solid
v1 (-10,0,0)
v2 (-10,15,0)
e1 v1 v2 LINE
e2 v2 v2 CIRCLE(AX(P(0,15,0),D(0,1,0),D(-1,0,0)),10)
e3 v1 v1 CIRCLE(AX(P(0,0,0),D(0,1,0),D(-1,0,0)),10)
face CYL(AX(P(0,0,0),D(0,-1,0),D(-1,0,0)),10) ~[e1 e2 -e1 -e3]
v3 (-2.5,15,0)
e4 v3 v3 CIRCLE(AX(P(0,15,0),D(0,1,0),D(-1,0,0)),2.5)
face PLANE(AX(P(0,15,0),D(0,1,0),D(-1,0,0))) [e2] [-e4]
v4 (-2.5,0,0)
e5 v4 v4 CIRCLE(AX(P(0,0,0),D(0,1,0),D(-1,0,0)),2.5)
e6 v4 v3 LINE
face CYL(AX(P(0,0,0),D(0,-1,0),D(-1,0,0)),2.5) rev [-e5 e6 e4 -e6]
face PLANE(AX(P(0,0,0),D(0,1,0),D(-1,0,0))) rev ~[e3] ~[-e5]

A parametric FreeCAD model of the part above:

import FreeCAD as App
import Part
import Sketcher
from FreeCAD import Vector

doc = App.newDocument("Part")
body = doc.addObject("PartDesign::Body", "Body")

# Sketch on XZ plane
sketch1 = body.newObject("Sketcher::SketchObject", "Sketch")
sketch1.AttachmentSupport = (doc.getObject("XZ_Plane"), [""])
sketch1.MapMode = "FlatFace"
sketch1.addGeometry([
    Part.Circle(Vector(0, 0, 0), Vector(0, 0, 1), 10),
    Part.Circle(Vector(0, 0, 0), Vector(0, 0, 1), 2.5),
], False)
sketch1.addConstraint([
    Sketcher.Constraint("Coincident", 0, 3, -1, 1),
    Sketcher.Constraint("Coincident", 1, 3, -1, 1),
    Sketcher.Constraint("Diameter", 0, 20.0),
    Sketcher.Constraint("Diameter", 1, 5.0),
])
pad1 = body.newObject("PartDesign::Pad", "Pad")
pad1.Profile = sketch1
pad1.Length = 15
pad1.Reversed = True

doc.recompute()
